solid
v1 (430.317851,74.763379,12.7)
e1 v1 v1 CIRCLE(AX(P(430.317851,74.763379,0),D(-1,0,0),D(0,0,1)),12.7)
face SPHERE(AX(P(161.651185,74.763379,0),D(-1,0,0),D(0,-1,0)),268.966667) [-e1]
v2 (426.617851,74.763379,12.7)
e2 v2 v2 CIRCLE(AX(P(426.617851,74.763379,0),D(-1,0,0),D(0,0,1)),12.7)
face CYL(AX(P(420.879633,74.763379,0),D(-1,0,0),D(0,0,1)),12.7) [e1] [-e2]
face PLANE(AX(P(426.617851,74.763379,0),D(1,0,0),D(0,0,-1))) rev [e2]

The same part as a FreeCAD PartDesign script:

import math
import FreeCAD as App
import Part
import Sketcher
Q = App.Units.Quantity

doc = App.newDocument("Part")
body = doc.addObject("PartDesign::Body", "Body")

# Sketch on XY plane
sketch1 = body.newObject("Sketcher::SketchObject", "Sketch")
sketch1.AttachmentSupport = (doc.getObject("XY_Plane"), [""])
sketch1.MapMode = "FlatFace"
sketch1.addGeometry(Part.LineSegment(App.Vector(426.617851, 87.463379, 0), App.Vector(426.617851, 74.763379, 0)), False)
sketch1.addGeometry(Part.LineSegment(App.Vector(426.617851, 74.763379, 0), App.Vector(430.617851, 74.763379, 0)), False)
sketch1.addGeometry(Part.ArcOfCircle(Part.Circle(App.Vector(161.651187, 74.763379, 0), App.Vector(0, 0, 1), 268.966665), math.radians(0), math.radians(2.706384)), False)
sketch1.addGeometry(Part.LineSegment(App.Vector(430.317851, 87.463379, 0), App.Vector(426.617851, 87.463379, 0)), False)
sketch1.addGeometry(Part.LineSegment(App.Vector(161.651187, 74.763379, 0), App.Vector(430.617851, 74.763379, 0)), True)  # axis
sketch1.addConstraint(Sketcher.Constraint("Coincident", 0, 2, 1, 1))
sketch1.addConstraint(Sketcher.Constraint("Coincident", 1, 2, 2, 1))
sketch1.addConstraint(Sketcher.Constraint("Coincident", 2, 2, 3, 1))
sketch1.addConstraint(Sketcher.Constraint("Coincident", 3, 2, 0, 1))
sketch1.addConstraint(Sketcher.Constraint("Vertical", 0))
sketch1.addConstraint(Sketcher.Constraint("Horizontal", 1))
sketch1.addConstraint(Sketcher.Constraint("Horizontal", 3))
sketch1.addConstraint(Sketcher.Constraint("Horizontal", 4))
sketch1.addConstraint(Sketcher.Constraint("Coincident", 4, 1, 2, 3))
sketch1.addConstraint(Sketcher.Constraint("Coincident", 4, 2, 1, 2))
sketch1.addConstraint(Sketcher.Constraint("DistanceX", 1, 1, 1, 2, Q("4 mm")))
sketch1.addConstraint(Sketcher.Constraint("DistanceX", 3, 2, 3, 1, Q("3.7 mm")))
sketch1.addConstraint(Sketcher.Constraint("DistanceY", 0, 2, 0, 1, Q("12.7 mm")))
sketch1.addConstraint(Sketcher.Constraint("DistanceY", -1, 1, 2, 3, Q("74.763379 mm")))
sketch1.addConstraint(Sketcher.Constraint("DistanceX", -1, 1, 0, 2, Q("426.617851 mm")))
revolution = body.newObject("PartDesign::Revolution", "Revolution")
revolution.Profile = sketch1
revolution.ReferenceAxis = (sketch1, ["Axis0"])
revolution.Angle = 360

doc.recompute()
